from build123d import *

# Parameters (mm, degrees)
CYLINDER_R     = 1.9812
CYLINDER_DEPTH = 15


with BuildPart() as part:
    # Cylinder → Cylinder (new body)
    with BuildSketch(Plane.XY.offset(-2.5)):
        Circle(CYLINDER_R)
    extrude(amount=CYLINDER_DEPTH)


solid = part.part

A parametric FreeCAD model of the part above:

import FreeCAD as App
import Part
import Sketcher

V = App.Vector

doc = App.newDocument("Part")
body = doc.addObject("PartDesign::Body", "Body")

# Sketch on XY plane
sketch1 = body.newObject("Sketcher::SketchObject", "Sketch")
sketch1.AttachmentSupport = (doc.getObject("XY_Plane"), [""])
sketch1.MapMode = "FlatFace"
sketch1.AttachmentOffset = App.Placement(V(0, 0, -2.5), App.Rotation())
sketch1.addGeometry(Part.Circle(V(0, 0, 0), V(0, 0, 1), 2), False)
sketch1.addConstraint(Sketcher.Constraint("Coincident", 0, 3, -1, 1))
sketch1.addConstraint(Sketcher.Constraint("Diameter", 0, 3.9624))
pad1 = body.newObject("PartDesign::Pad", "Pad")
pad1.Profile = sketch1
pad1.Length = 15

doc.recompute()
